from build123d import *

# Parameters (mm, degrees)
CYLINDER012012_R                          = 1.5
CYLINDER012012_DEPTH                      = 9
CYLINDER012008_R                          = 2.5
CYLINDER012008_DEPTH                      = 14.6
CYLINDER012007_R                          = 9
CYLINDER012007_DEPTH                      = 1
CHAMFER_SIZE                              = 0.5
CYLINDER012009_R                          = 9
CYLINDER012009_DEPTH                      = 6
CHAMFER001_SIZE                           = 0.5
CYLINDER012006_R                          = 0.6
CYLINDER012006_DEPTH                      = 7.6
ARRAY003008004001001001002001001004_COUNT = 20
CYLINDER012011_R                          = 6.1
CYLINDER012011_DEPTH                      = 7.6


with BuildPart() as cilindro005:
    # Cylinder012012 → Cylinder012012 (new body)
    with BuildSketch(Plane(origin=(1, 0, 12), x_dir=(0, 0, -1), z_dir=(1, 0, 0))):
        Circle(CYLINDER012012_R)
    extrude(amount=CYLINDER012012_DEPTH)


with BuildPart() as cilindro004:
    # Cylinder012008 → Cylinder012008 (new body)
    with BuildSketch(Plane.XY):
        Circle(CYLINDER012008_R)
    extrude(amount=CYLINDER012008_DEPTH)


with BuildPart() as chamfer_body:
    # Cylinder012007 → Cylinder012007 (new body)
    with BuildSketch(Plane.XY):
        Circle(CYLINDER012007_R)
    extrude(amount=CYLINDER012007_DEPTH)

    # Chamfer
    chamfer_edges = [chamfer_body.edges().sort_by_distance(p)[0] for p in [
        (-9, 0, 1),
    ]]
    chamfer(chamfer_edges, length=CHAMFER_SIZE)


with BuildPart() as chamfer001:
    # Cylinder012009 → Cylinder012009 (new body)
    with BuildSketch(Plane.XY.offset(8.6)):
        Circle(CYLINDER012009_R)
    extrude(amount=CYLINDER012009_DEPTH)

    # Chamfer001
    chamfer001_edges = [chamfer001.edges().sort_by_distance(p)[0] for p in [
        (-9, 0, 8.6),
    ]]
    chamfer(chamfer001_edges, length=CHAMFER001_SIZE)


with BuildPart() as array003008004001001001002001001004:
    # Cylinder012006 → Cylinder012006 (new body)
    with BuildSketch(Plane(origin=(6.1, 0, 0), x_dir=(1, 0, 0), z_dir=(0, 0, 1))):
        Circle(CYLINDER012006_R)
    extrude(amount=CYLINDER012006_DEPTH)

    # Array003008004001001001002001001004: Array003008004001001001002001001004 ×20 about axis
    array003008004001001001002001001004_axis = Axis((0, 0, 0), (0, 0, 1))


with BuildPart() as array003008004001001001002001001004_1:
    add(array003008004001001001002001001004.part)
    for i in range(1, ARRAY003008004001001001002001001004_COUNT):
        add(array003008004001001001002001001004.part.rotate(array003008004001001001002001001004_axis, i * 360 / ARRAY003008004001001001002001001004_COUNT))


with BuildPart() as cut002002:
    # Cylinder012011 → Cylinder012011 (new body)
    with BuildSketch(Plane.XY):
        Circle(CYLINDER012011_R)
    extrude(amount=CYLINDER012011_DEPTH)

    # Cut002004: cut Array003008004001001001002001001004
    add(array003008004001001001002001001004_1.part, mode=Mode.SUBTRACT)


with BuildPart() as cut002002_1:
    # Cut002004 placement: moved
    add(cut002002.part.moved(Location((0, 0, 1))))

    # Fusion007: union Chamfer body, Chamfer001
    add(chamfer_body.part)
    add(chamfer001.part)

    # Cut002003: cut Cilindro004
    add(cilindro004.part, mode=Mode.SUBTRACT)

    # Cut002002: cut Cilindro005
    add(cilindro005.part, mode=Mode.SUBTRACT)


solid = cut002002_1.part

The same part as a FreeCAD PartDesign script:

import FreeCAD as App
import Part
import Sketcher
from FreeCAD import Vector


def edges_at(feature, points):
    """Names of the edges that pass closest to the given points."""
    edges = feature.Shape.Edges
    near = lambda p: min(range(len(edges)), key=lambda i: edges[i].distToShape(Part.Vertex(*p))[0])
    return sorted({f"Edge{near(p) + 1}" for p in points})

doc = App.newDocument("Part")
body = doc.addObject("PartDesign::Body", "Body")

# Sketch on YZ plane
sketch1 = body.newObject("Sketcher::SketchObject", "Sketch")
sketch1.AttachmentSupport = (doc.getObject("YZ_Plane"), [""])
sketch1.MapMode = "FlatFace"
sketch1.AttachmentOffset = App.Placement(Vector(0, 0, 1), App.Rotation())
sketch1.addGeometry(Part.Circle(Vector(0, 12, 0), Vector(0, 0, 1), 1.5), False)
sketch1.addConstraint(Sketcher.Constraint("PointOnObject", 0, 3, -2))
sketch1.addConstraint(Sketcher.Constraint("Diameter", 0, 3.0))
sketch1.addConstraint(Sketcher.Constraint("DistanceY", -1, 1, 0, 3, 12.0))
pad1 = body.newObject("PartDesign::Pad", "Pad")
pad1.Profile = sketch1
pad1.Length = 9
body2 = doc.addObject("PartDesign::Body", "Body001")

# Sketch on XY plane
sketch2 = body2.newObject("Sketcher::SketchObject", "Sketch001")
sketch2.AttachmentSupport = (doc.getObject("XY_Plane001"), [""])
sketch2.MapMode = "FlatFace"
sketch2.addGeometry(Part.Circle(Vector(0, 0, 0), Vector(0, 0, 1), 2.5), False)
sketch2.addConstraint(Sketcher.Constraint("Coincident", 0, 3, -1, 1))
sketch2.addConstraint(Sketcher.Constraint("Diameter", 0, 5.0))
pad2 = body2.newObject("PartDesign::Pad", "Pad001")
pad2.Profile = sketch2
pad2.Length = 14.6
body3 = doc.addObject("PartDesign::Body", "Body002")

# Sketch on XY plane
sketch3 = body3.newObject("Sketcher::SketchObject", "Sketch002")
sketch3.AttachmentSupport = (doc.getObject("XY_Plane002"), [""])
sketch3.MapMode = "FlatFace"
sketch3.addGeometry(Part.Circle(Vector(0, 0, 0), Vector(0, 0, 1), 9), False)
sketch3.addConstraint(Sketcher.Constraint("Coincident", 0, 3, -1, 1))
sketch3.addConstraint(Sketcher.Constraint("Diameter", 0, 18.0))
pad3 = body3.newObject("PartDesign::Pad", "Pad002")
pad3.Profile = sketch3
pad3.Length = 1
doc.recompute()

chamfer = body3.newObject("PartDesign::Chamfer", "Chamfer")
chamfer.Base = (pad3, edges_at(pad3, [(-9, 0, 1)]))
chamfer.Size = 0.5
body4 = doc.addObject("PartDesign::Body", "Body003")

# Sketch on XY plane
sketch4 = body4.newObject("Sketcher::SketchObject", "Sketch003")
sketch4.AttachmentSupport = (doc.getObject("XY_Plane003"), [""])
sketch4.MapMode = "FlatFace"
sketch4.AttachmentOffset = App.Placement(Vector(0, 0, 8.6), App.Rotation())
sketch4.addGeometry(Part.Circle(Vector(0, 0, 0), Vector(0, 0, 1), 9), False)
sketch4.addConstraint(Sketcher.Constraint("Coincident", 0, 3, -1, 1))
sketch4.addConstraint(Sketcher.Constraint("Diameter", 0, 18.0))
pad4 = body4.newObject("PartDesign::Pad", "Pad003")
pad4.Profile = sketch4
pad4.Length = 6
doc.recompute()

chamfer2 = body4.newObject("PartDesign::Chamfer", "Chamfer001")
chamfer2.Base = (pad4, edges_at(pad4, [(-9, 0, 8.6)]))
chamfer2.Size = 0.5
body5 = doc.addObject("PartDesign::Body", "Body004")

# Sketch on XY plane
sketch5 = body5.newObject("Sketcher::SketchObject", "Sketch004")
sketch5.AttachmentSupport = (doc.getObject("XY_Plane004"), [""])
sketch5.MapMode = "FlatFace"
sketch5.addGeometry(Part.Circle(Vector(6.1, 0, 0), Vector(0, 0, 1), 0.6), False)
sketch5.addConstraint(Sketcher.Constraint("PointOnObject", 0, 3, -1))
sketch5.addConstraint(Sketcher.Constraint("Diameter", 0, 1.2))
sketch5.addConstraint(Sketcher.Constraint("DistanceX", -1, 1, 0, 3, 6.1))
pad5 = body5.newObject("PartDesign::Pad", "Pad004")
pad5.Profile = sketch5
pad5.Length = 7.6
body6 = doc.addObject("PartDesign::Body", "Body005")
body6.AllowCompound = True
doc.recompute()

body6.BaseFeature = body5
doc.recompute()

body7 = doc.addObject("PartDesign::Body", "Body006")
body7.BaseFeature = body5
body7.Placement = App.Placement(Vector(0, 0, 0), App.Rotation(Vector(0, 0, 1), 18))
boolean = body6.newObject("PartDesign::Boolean", "Boolean")
boolean.Type = "Fuse"
boolean.addObjects([body7])
doc.recompute()

body8 = doc.addObject("PartDesign::Body", "Body007")
body8.BaseFeature = body5
body8.Placement = App.Placement(Vector(0, 0, 0), App.Rotation(Vector(0, 0, 1), 36))
boolean2 = body6.newObject("PartDesign::Boolean", "Boolean001")
boolean2.Type = "Fuse"
boolean2.addObjects([body8])
doc.recompute()

body9 = doc.addObject("PartDesign::Body", "Body008")
body9.BaseFeature = body5
body9.Placement = App.Placement(Vector(0, 0, 0), App.Rotation(Vector(0, 0, 1), 54))
boolean3 = body6.newObject("PartDesign::Boolean", "Boolean002")
boolean3.Type = "Fuse"
boolean3.addObjects([body9])
doc.recompute()

body10 = doc.addObject("PartDesign::Body", "Body009")
body10.BaseFeature = body5
body10.Placement = App.Placement(Vector(0, 0, 0), App.Rotation(Vector(0, 0, 1), 72))
boolean4 = body6.newObject("PartDesign::Boolean", "Boolean003")
boolean4.Type = "Fuse"
boolean4.addObjects([body10])
doc.recompute()

body11 = doc.addObject("PartDesign::Body", "Body010")
body11.BaseFeature = body5
body11.Placement = App.Placement(Vector(0, 0, 0), App.Rotation(Vector(0, 0, 1), 90))
boolean5 = body6.newObject("PartDesign::Boolean", "Boolean004")
boolean5.Type = "Fuse"
boolean5.addObjects([body11])
doc.recompute()

body12 = doc.addObject("PartDesign::Body", "Body011")
body12.BaseFeature = body5
body12.Placement = App.Placement(Vector(0, 0, 0), App.Rotation(Vector(0, 0, 1), 108))
boolean6 = body6.newObject("PartDesign::Boolean", "Boolean005")
boolean6.Type = "Fuse"
boolean6.addObjects([body12])
doc.recompute()

body13 = doc.addObject("PartDesign::Body", "Body012")
body13.BaseFeature = body5
body13.Placement = App.Placement(Vector(0, 0, 0), App.Rotation(Vector(0, 0, 1), 126))
boolean7 = body6.newObject("PartDesign::Boolean", "Boolean006")
boolean7.Type = "Fuse"
boolean7.addObjects([body13])
doc.recompute()

body14 = doc.addObject("PartDesign::Body", "Body013")
body14.BaseFeature = body5
body14.Placement = App.Placement(Vector(0, 0, 0), App.Rotation(Vector(0, 0, 1), 144))
boolean8 = body6.newObject("PartDesign::Boolean", "Boolean007")
boolean8.Type = "Fuse"
boolean8.addObjects([body14])
doc.recompute()

body15 = doc.addObject("PartDesign::Body", "Body014")
body15.BaseFeature = body5
body15.Placement = App.Placement(Vector(0, 0, 0), App.Rotation(Vector(0, 0, 1), 162))
boolean9 = body6.newObject("PartDesign::Boolean", "Boolean008")
boolean9.Type = "Fuse"
boolean9.addObjects([body15])
doc.recompute()

body16 = doc.addObject("PartDesign::Body", "Body015")
body16.BaseFeature = body5
body16.Placement = App.Placement(Vector(0, 0, 0), App.Rotation(Vector(0, 0, 1), 180))
boolean10 = body6.newObject("PartDesign::Boolean", "Boolean009")
boolean10.Type = "Fuse"
boolean10.addObjects([body16])
doc.recompute()

body17 = doc.addObject("PartDesign::Body", "Body016")
body17.BaseFeature = body5
body17.Placement = App.Placement(Vector(0, 0, 0), App.Rotation(Vector(0, 0, 1), 198))
boolean11 = body6.newObject("PartDesign::Boolean", "Boolean010")
boolean11.Type = "Fuse"
boolean11.addObjects([body17])
doc.recompute()

body18 = doc.addObject("PartDesign::Body", "Body017")
body18.BaseFeature = body5
body18.Placement = App.Placement(Vector(0, 0, 0), App.Rotation(Vector(0, 0, 1), 216))
boolean12 = body6.newObject("PartDesign::Boolean", "Boolean011")
boolean12.Type = "Fuse"
boolean12.addObjects([body18])
doc.recompute()

body19 = doc.addObject("PartDesign::Body", "Body018")
body19.BaseFeature = body5
body19.Placement = App.Placement(Vector(0, 0, 0), App.Rotation(Vector(0, 0, 1), 234))
boolean13 = body6.newObject("PartDesign::Boolean", "Boolean012")
boolean13.Type = "Fuse"
boolean13.addObjects([body19])
doc.recompute()

body20 = doc.addObject("PartDesign::Body", "Body019")
body20.BaseFeature = body5
body20.Placement = App.Placement(Vector(0, 0, 0), App.Rotation(Vector(0, 0, 1), 252))
boolean14 = body6.newObject("PartDesign::Boolean", "Boolean013")
boolean14.Type = "Fuse"
boolean14.addObjects([body20])
doc.recompute()

body21 = doc.addObject("PartDesign::Body", "Body020")
body21.BaseFeature = body5
body21.Placement = App.Placement(Vector(0, 0, 0), App.Rotation(Vector(0, 0, 1), 270))
boolean15 = body6.newObject("PartDesign::Boolean", "Boolean014")
boolean15.Type = "Fuse"
boolean15.addObjects([body21])
doc.recompute()

body22 = doc.addObject("PartDesign::Body", "Body021")
body22.BaseFeature = body5
body22.Placement = App.Placement(Vector(0, 0, 0), App.Rotation(Vector(0, 0, 1), 288))
boolean16 = body6.newObject("PartDesign::Boolean", "Boolean015")
boolean16.Type = "Fuse"
boolean16.addObjects([body22])
doc.recompute()

body23 = doc.addObject("PartDesign::Body", "Body022")
body23.BaseFeature = body5
body23.Placement = App.Placement(Vector(0, 0, 0), App.Rotation(Vector(0, 0, 1), 306))
boolean17 = body6.newObject("PartDesign::Boolean", "Boolean016")
boolean17.Type = "Fuse"
boolean17.addObjects([body23])
doc.recompute()

body24 = doc.addObject("PartDesign::Body", "Body023")
body24.BaseFeature = body5
body24.Placement = App.Placement(Vector(0, 0, 0), App.Rotation(Vector(0, 0, 1), 324))
boolean18 = body6.newObject("PartDesign::Boolean", "Boolean017")
boolean18.Type = "Fuse"
boolean18.addObjects([body24])
doc.recompute()

body5.Placement = App.Placement(Vector(0, 0, 0), App.Rotation(Vector(0, 0, 1), 342))
boolean19 = body6.newObject("PartDesign::Boolean", "Boolean018")
boolean19.Type = "Fuse"
boolean19.addObjects([body5])
body25 = doc.addObject("PartDesign::Body", "Body024")

# Sketch on XY plane
sketch6 = body25.newObject("Sketcher::SketchObject", "Sketch005")
sketch6.AttachmentSupport = (doc.getObject("XY_Plane024"), [""])
sketch6.MapMode = "FlatFace"
sketch6.addGeometry(Part.Circle(Vector(0, 0, 0), Vector(0, 0, 1), 6), False)
sketch6.addConstraint(Sketcher.Constraint("Coincident", 0, 3, -1, 1))
sketch6.addConstraint(Sketcher.Constraint("Diameter", 0, 12.2))
pad6 = body25.newObject("PartDesign::Pad", "Pad005")
pad6.Profile = sketch6
pad6.Length = 7.6
doc.recompute()

boolean20 = body25.newObject("PartDesign::Boolean", "Boolean019")
boolean20.Type = "Cut"
boolean20.addObjects([body6])
body26 = doc.addObject("PartDesign::Body", "Body025")
doc.recompute()

body25.Placement = App.Placement(Vector(0, 0, 1), App.Rotation(Vector(0, 0, 1), 0))
boolean21 = body26.newObject("PartDesign::Boolean", "Boolean020")
boolean21.Type = "Fuse"
boolean21.addObjects([body25])
doc.recompute()

boolean22 = body26.newObject("PartDesign::Boolean", "Boolean021")
boolean22.Type = "Fuse"
boolean22.addObjects([body3])
doc.recompute()

boolean23 = body26.newObject("PartDesign::Boolean", "Boolean022")
boolean23.Type = "Fuse"
boolean23.addObjects([body4])
doc.recompute()

boolean24 = body26.newObject("PartDesign::Boolean", "Boolean023")
boolean24.Type = "Cut"
boolean24.addObjects([body2])
doc.recompute()

boolean25 = body26.newObject("PartDesign::Boolean", "Boolean024")
boolean25.Type = "Cut"
boolean25.addObjects([body])

doc.recompute()
